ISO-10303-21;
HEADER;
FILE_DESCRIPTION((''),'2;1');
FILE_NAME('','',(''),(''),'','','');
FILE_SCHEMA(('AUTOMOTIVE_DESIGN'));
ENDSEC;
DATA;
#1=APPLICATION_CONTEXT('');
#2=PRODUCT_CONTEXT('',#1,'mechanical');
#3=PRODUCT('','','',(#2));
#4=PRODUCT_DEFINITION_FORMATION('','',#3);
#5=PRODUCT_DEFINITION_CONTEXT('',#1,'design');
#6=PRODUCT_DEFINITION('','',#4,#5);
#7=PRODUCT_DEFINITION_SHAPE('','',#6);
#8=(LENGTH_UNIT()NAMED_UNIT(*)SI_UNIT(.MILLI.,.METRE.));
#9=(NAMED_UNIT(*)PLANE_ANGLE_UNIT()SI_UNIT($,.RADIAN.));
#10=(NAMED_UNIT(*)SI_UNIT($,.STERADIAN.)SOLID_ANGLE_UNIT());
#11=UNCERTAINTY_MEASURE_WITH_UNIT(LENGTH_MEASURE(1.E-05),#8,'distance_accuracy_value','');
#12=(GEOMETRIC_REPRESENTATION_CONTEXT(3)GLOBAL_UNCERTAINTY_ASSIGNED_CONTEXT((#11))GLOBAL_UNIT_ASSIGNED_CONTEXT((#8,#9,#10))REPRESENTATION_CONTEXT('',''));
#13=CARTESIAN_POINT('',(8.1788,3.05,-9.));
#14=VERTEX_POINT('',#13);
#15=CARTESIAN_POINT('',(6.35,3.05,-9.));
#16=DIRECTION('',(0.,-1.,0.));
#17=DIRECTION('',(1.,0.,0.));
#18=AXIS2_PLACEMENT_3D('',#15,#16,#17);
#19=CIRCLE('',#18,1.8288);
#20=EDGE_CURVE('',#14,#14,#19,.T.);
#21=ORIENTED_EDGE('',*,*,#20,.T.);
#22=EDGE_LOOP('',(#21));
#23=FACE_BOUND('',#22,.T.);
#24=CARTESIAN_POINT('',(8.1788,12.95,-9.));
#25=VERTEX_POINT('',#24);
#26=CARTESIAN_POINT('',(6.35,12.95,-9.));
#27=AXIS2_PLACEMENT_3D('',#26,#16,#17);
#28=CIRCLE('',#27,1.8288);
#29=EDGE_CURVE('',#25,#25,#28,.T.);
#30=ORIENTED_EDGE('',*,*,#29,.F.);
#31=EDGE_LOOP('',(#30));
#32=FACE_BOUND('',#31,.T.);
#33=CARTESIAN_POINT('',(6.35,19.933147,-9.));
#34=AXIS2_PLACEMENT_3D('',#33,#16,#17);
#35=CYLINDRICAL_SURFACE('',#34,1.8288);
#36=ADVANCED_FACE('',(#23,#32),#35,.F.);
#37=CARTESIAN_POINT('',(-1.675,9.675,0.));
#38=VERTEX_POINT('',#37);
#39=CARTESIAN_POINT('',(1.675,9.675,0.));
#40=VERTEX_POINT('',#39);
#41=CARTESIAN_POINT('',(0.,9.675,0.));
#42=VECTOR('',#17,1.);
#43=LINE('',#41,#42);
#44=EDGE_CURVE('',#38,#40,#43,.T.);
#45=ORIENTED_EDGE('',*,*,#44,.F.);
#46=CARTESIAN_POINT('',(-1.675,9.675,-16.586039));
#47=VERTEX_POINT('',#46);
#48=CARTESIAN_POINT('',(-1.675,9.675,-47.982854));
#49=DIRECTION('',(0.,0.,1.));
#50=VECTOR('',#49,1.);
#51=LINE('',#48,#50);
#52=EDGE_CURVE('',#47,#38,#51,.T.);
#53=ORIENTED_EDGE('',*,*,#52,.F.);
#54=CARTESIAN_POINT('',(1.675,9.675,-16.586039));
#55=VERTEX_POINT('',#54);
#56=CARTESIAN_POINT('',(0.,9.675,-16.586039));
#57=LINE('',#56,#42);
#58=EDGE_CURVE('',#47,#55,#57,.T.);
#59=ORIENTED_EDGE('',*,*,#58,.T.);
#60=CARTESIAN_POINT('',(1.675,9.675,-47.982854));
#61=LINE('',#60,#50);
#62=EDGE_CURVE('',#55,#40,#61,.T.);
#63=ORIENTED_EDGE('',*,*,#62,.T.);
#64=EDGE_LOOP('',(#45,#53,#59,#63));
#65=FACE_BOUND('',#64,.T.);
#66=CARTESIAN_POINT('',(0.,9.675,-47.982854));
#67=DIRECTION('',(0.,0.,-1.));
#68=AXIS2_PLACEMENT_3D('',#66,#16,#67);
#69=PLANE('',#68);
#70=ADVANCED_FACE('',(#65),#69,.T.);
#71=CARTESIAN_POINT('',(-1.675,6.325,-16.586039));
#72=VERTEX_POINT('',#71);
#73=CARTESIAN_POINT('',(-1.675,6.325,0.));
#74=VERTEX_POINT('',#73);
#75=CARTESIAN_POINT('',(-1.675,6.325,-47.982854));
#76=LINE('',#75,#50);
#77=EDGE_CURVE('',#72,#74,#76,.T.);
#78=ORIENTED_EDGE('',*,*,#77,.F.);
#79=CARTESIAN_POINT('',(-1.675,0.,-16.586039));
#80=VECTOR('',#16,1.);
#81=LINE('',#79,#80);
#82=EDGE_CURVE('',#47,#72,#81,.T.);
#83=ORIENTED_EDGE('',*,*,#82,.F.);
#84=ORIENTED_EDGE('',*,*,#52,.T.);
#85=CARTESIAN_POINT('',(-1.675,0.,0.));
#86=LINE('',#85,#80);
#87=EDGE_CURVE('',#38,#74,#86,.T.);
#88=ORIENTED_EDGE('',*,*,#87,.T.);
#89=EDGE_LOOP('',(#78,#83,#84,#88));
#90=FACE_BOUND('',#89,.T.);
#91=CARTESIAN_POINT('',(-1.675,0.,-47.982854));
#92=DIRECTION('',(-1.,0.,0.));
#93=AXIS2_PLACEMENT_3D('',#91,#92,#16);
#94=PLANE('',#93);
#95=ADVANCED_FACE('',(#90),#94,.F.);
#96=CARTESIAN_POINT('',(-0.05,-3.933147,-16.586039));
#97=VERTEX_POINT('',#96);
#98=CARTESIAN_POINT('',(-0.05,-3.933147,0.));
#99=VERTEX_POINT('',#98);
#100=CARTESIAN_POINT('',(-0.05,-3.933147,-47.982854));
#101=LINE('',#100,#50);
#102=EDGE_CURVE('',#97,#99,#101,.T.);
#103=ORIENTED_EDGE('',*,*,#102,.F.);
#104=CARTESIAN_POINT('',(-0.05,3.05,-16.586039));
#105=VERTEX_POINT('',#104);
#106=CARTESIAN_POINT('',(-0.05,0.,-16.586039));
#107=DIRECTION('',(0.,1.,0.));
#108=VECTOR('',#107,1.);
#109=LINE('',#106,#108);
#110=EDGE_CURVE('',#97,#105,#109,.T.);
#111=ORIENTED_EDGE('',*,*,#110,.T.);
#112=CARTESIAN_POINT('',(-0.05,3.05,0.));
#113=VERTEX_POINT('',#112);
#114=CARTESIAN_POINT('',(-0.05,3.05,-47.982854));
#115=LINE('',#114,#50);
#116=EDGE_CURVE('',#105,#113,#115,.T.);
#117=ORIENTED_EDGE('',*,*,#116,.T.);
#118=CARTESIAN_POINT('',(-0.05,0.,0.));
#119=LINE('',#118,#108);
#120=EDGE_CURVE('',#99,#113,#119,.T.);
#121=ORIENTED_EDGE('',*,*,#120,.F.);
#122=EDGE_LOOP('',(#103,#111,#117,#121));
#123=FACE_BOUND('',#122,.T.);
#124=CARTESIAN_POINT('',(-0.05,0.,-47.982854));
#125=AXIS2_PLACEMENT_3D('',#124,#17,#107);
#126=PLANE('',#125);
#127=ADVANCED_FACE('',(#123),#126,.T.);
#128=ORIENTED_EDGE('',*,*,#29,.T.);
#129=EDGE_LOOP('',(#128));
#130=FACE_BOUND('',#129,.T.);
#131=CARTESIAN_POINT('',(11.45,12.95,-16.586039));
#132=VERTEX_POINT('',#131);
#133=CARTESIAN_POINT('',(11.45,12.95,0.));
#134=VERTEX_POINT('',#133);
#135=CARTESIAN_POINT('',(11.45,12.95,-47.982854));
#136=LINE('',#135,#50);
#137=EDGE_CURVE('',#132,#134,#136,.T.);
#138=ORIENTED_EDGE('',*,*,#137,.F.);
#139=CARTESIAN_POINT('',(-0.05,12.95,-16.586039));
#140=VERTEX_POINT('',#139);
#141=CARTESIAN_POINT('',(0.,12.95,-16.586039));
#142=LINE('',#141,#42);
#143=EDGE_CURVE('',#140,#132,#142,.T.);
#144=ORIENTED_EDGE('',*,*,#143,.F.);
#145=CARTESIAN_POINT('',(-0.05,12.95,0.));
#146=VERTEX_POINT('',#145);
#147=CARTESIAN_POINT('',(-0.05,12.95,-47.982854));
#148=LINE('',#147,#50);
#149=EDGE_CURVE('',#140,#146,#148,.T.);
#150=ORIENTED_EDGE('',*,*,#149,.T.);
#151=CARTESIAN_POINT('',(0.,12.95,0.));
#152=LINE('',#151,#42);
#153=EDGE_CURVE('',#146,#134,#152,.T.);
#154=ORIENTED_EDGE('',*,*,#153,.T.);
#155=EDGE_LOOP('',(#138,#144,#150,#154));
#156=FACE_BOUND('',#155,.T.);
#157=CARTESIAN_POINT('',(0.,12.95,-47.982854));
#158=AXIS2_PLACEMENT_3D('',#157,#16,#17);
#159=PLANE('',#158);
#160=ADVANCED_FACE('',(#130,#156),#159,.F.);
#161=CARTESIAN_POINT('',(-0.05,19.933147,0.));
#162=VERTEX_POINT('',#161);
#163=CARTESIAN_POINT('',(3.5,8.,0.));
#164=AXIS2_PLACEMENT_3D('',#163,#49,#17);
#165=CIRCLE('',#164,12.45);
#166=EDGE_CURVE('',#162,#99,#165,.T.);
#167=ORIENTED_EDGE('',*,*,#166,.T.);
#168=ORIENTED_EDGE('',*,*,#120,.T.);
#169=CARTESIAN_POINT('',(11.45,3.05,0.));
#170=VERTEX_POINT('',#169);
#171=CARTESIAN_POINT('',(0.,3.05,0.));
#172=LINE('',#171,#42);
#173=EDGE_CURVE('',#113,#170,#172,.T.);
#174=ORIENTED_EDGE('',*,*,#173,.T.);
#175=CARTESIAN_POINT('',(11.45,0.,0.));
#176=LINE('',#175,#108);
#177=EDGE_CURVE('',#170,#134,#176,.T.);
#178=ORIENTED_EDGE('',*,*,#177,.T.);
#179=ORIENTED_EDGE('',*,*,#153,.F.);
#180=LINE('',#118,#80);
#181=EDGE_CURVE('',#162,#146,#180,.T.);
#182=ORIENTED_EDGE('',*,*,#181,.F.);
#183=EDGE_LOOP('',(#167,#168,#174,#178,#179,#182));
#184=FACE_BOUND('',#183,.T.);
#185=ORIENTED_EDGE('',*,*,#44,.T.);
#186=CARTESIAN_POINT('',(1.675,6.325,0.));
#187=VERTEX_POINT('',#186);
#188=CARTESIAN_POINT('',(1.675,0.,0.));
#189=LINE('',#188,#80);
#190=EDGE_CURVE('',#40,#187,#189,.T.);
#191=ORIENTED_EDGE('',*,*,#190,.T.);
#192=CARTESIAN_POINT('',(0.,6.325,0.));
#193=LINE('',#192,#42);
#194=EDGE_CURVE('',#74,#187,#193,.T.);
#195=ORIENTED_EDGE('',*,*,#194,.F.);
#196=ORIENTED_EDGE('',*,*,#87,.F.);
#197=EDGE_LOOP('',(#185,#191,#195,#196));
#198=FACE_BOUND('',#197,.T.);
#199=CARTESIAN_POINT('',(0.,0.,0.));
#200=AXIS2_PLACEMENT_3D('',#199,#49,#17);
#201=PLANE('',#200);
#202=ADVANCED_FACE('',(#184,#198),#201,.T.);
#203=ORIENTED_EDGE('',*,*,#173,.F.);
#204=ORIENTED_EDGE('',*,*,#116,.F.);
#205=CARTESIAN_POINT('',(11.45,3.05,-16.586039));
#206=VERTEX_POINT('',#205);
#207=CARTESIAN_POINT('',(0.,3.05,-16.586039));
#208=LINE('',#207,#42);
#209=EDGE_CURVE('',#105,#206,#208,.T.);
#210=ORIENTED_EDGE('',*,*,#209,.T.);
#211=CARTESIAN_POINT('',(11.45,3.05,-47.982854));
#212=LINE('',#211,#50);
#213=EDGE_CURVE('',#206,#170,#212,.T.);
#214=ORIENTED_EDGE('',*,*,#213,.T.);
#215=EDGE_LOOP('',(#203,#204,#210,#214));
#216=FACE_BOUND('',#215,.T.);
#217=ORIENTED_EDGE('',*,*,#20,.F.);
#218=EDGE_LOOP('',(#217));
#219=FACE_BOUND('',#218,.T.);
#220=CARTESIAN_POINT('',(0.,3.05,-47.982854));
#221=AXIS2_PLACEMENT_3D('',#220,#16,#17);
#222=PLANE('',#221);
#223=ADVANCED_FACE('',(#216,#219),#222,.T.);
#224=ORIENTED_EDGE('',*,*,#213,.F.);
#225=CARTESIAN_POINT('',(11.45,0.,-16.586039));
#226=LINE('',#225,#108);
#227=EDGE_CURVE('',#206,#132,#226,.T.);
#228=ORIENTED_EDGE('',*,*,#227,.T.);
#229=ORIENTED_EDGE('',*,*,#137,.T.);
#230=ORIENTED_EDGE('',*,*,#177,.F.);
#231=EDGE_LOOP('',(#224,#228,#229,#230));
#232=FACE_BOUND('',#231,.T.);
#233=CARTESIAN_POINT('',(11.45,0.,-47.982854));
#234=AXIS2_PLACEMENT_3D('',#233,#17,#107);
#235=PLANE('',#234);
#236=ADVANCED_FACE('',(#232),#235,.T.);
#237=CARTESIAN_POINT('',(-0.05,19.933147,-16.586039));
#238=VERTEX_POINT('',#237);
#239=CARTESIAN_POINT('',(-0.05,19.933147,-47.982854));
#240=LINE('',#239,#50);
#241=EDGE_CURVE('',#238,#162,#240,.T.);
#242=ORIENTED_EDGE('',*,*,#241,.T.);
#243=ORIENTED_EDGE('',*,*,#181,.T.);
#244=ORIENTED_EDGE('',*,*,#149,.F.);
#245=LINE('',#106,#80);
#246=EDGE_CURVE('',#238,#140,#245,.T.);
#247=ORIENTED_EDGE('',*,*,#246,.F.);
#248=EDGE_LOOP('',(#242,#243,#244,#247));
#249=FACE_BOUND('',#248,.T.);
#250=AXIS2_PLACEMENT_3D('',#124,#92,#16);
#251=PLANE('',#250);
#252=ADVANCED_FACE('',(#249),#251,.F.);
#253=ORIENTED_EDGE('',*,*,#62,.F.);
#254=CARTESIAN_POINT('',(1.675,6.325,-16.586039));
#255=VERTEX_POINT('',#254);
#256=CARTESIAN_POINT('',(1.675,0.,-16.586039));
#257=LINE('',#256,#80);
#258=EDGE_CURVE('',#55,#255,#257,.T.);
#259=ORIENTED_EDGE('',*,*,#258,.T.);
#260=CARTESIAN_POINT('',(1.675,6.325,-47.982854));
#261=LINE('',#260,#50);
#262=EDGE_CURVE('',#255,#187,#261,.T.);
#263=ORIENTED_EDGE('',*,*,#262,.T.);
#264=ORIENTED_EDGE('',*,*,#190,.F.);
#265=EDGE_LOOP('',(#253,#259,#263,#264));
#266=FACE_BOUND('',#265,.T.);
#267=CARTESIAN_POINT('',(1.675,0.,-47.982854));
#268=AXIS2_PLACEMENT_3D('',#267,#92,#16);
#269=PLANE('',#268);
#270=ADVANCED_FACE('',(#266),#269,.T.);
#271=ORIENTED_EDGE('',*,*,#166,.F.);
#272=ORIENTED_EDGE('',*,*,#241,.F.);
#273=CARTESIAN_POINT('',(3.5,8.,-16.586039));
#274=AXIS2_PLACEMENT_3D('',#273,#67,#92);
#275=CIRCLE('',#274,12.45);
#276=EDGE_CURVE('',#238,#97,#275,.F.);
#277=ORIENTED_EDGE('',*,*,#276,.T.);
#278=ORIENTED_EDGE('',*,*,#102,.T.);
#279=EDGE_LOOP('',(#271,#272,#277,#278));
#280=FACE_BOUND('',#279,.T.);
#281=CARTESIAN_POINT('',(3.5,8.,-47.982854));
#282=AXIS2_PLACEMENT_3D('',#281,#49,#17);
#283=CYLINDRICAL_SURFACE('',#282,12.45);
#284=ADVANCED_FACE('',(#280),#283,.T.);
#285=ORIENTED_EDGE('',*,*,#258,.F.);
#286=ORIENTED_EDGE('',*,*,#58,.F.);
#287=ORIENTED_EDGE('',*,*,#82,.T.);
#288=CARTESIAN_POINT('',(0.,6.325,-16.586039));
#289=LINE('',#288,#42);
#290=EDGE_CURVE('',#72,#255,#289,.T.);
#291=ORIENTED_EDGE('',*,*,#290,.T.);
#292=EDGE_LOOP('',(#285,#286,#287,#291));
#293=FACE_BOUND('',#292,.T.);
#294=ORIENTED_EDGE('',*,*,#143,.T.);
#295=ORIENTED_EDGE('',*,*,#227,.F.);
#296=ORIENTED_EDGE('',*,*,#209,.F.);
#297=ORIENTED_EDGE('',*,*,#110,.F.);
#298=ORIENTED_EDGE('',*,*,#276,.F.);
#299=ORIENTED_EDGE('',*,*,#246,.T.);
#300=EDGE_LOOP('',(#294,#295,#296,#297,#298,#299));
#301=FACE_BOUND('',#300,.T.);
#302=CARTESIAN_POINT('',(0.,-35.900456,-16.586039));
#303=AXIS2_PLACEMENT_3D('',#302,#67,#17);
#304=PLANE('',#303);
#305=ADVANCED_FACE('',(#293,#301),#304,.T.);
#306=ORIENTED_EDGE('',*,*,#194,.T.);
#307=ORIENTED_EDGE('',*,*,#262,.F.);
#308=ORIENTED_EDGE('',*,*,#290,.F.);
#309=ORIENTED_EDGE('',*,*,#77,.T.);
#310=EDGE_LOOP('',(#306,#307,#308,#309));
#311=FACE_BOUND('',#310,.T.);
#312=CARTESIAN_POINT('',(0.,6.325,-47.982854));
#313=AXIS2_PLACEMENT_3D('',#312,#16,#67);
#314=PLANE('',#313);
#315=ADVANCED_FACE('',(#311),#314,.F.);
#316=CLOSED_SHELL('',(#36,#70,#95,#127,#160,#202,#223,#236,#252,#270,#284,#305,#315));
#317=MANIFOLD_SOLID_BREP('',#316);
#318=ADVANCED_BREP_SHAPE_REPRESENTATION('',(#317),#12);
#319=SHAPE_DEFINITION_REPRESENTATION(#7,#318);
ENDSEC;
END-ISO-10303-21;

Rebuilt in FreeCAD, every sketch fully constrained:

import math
import FreeCAD as App
import Part
import Sketcher

V = App.Vector
Q = App.Units.Quantity

doc = App.newDocument("Part")
body = doc.addObject("PartDesign::Body", "Body")

sketch1 = body.newObject("Sketcher::SketchObject", "Sketch")
sketch1.AttachmentSupport = (doc.getObject("XY_Plane"), [""])
sketch1.MapMode = "FlatFace"
sketch1.addGeometry([
    Part.LineSegment(V(-0.1, 12.9, 0), V(-0.1, 19.9, 0)),
    Part.ArcOfCircle(Part.Circle(V(3.5, 8, 0), V(0, 0, 1), 12.4), math.radians(107), math.radians(253)),
    Part.LineSegment(V(-0.1, -3.9, 0), V(-0.1, 3, 0)),
    Part.LineSegment(V(-0.1, 3, 0), V(11.4, 3, 0)),
    Part.LineSegment(V(11.4, 3, 0), V(11.4, 12.9, 0)),
    Part.LineSegment(V(11.4, 12.9, 0), V(-0.1, 12.9, 0)),
    Part.LineSegment(V(-1.7, 6.3, 0), V(-1.7, 9.7, 0)),
    Part.LineSegment(V(-1.7, 9.7, 0), V(1.7, 9.7, 0)),
    Part.LineSegment(V(1.7, 9.7, 0), V(1.7, 6.3, 0)),
    Part.LineSegment(V(1.7, 6.3, 0), V(-1.7, 6.3, 0)),
], False)
sketch1.addConstraint([
    Sketcher.Constraint("Coincident", 0, 2, 1, 1),
    Sketcher.Constraint("Coincident", 1, 2, 2, 1),
    Sketcher.Constraint("Coincident", 2, 2, 3, 1),
    Sketcher.Constraint("Coincident", 3, 2, 4, 1),
    Sketcher.Constraint("Coincident", 4, 2, 5, 1),
    Sketcher.Constraint("Coincident", 5, 2, 0, 1),
    Sketcher.Constraint("Coincident", 6, 2, 7, 1),
    Sketcher.Constraint("Coincident", 7, 2, 8, 1),
    Sketcher.Constraint("Coincident", 8, 2, 9, 1),
    Sketcher.Constraint("Coincident", 9, 2, 6, 1),
    Sketcher.Constraint("Vertical", 0),
    Sketcher.Constraint("Vertical", 2),
    Sketcher.Constraint("Horizontal", 3),
    Sketcher.Constraint("Vertical", 4),
    Sketcher.Constraint("Horizontal", 5),
    Sketcher.Constraint("Vertical", 6),
    Sketcher.Constraint("Horizontal", 7),
    Sketcher.Constraint("Vertical", 8),
    Sketcher.Constraint("Horizontal", 9),
    Sketcher.Constraint("Vertical", 0, 2, 1, 2),
    Sketcher.Constraint("Equal", 0, 2),
    Sketcher.Constraint("Equal", 9, 6),
    Sketcher.Constraint("Radius", 1, Q("12.45 mm")),
    Sketcher.Constraint("DistanceX", 3, 1, 3, 2, Q("11.5 mm")),
    Sketcher.Constraint("DistanceY", 4, 1, 4, 2, Q("9.9 mm")),
    Sketcher.Constraint("DistanceY", -1, 1, 1, 3, Q("8 mm")),
    Sketcher.Constraint("DistanceX", 7, 1, 7, 2, Q("3.35 mm")),
    Sketcher.Constraint("DistanceX", -1, 1, 1, 3, Q("3.5 mm")),
    Sketcher.Constraint("DistanceX", 0, 2, -1, 1, Q("0.05 mm")),
    Sketcher.Constraint("DistanceX", 6, 2, -1, 1, Q("1.675 mm")),
    Sketcher.Constraint("DistanceY", -1, 1, 6, 2, Q("9.675 mm")),
])
pad1 = body.newObject("PartDesign::Pad", "Pad")
pad1.Profile = sketch1
pad1.Length = 16.586039
pad1.Reversed = True

sketch2 = body.newObject("Sketcher::SketchObject", "Sketch001")
sketch2.AttachmentSupport = (doc.getObject("XZ_Plane"), [""])
sketch2.MapMode = "FlatFace"
sketch2.AttachmentOffset = App.Placement(V(0, 0, -3.05), App.Rotation())
sketch2.addGeometry(Part.Circle(V(6.3, -9, 0), V(0, 0, 1), 1.8), False)
sketch2.addConstraint([
    Sketcher.Constraint("DistanceY", 0, 3, -1, 1, Q("9 mm")),
    Sketcher.Constraint("Diameter", 0, Q("3.6576 mm")),
    Sketcher.Constraint("DistanceX", -1, 1, 0, 3, Q("6.35 mm")),
])
pocket1 = body.newObject("PartDesign::Pocket", "Pocket")
pocket1.Profile = sketch2
pocket1.Type = "ThroughAll"

doc.recompute()
